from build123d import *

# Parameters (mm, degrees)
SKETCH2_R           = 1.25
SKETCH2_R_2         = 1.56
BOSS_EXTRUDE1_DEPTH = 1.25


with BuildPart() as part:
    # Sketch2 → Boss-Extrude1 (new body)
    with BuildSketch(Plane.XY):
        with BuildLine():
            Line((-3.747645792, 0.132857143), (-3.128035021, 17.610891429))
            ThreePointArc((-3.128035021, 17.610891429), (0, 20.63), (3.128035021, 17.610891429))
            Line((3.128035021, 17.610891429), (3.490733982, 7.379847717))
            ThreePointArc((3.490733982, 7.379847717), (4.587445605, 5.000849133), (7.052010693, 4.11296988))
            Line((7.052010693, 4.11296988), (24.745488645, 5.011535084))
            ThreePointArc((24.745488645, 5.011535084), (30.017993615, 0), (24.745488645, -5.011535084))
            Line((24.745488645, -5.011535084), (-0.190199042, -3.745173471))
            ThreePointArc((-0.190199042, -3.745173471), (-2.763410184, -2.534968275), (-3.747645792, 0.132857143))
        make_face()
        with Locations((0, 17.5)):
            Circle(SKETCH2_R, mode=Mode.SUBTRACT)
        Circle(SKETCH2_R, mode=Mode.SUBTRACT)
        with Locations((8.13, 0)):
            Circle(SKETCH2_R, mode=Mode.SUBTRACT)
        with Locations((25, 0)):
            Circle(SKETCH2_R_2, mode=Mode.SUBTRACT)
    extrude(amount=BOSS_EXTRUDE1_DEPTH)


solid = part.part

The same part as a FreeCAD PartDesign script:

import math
import FreeCAD as App
import Part
import Sketcher

doc = App.newDocument("Part")
body = doc.addObject("PartDesign::Body", "Body")

# Sketch on XY plane
sketch1 = body.newObject("Sketcher::SketchObject", "Sketch")
sketch1.AttachmentSupport = (doc.getObject("XY_Plane"), [""])
sketch1.MapMode = "FlatFace"
sketch1.addGeometry([
    Part.LineSegment(App.Vector(-3.128035, 17.610891, 0), App.Vector(-3.747646, 0.132857, 0)),  # 0
    Part.ArcOfCircle(Part.Circle(App.Vector(0, 0, 0), App.Vector(0, 0, 1), 3.75), math.radians(177.969668), math.radians(267.092725)),  # 1
    Part.LineSegment(App.Vector(-0.190199, -3.745173, 0), App.Vector(24.745489, -5.011535, 0)),  # 2
    Part.ArcOfCircle(Part.Circle(App.Vector(25, 0, 0), App.Vector(0, 0, 1), 5.017994), math.radians(-92.907275), math.radians(92.907275)),  # 3
    Part.LineSegment(App.Vector(24.745489, 5.011535, 0), App.Vector(7.052011, 4.11297, 0)),  # 4
    Part.ArcOfCircle(Part.Circle(App.Vector(6.88, 7.5, 0), App.Vector(0, 0, 1), 3.391395), math.radians(-177.969667), math.radians(-87.092725)),  # 5
    Part.LineSegment(App.Vector(3.490734, 7.379848, 0), App.Vector(3.128035, 17.610891, 0)),  # 6
    Part.ArcOfCircle(Part.Circle(App.Vector(0, 17.5, 0), App.Vector(0, 0, 1), 3.13), math.radians(2.030333), math.radians(177.969667)),  # 7
    Part.Circle(App.Vector(25, 0, 0), App.Vector(0, 0, 1), 1.56),  # 8
    Part.Circle(App.Vector(8.13, 0, 0), App.Vector(0, 0, 1), 1.25),  # 9
    Part.Circle(App.Vector(0, 0, 0), App.Vector(0, 0, 1), 1.25),  # 10
    Part.Circle(App.Vector(0, 17.5, 0), App.Vector(0, 0, 1), 1.25),  # 11
], False)
sketch1.addConstraint([
    Sketcher.Constraint("Tangent", 0, 2, 1, 1),
    Sketcher.Constraint("Tangent", 1, 2, 2, 1),
    Sketcher.Constraint("Tangent", 2, 2, 3, 1),
    Sketcher.Constraint("Tangent", 3, 2, 4, 1),
    Sketcher.Constraint("Tangent", 4, 2, 5, 2),
    Sketcher.Constraint("Tangent", 5, 1, 6, 1),
    Sketcher.Constraint("Tangent", 6, 2, 7, 1),
    Sketcher.Constraint("Tangent", 7, 2, 0, 1),
    Sketcher.Constraint("Coincident", 1, 3, -1, 1),
    Sketcher.Constraint("Coincident", 10, 3, -1, 1),
    Sketcher.Constraint("Coincident", 8, 3, 3, 3),
    Sketcher.Constraint("Coincident", 11, 3, 7, 3),
    Sketcher.Constraint("Equal", 9, 10),
    Sketcher.Constraint("Equal", 10, 11),
    Sketcher.Constraint("Symmetric", 6, 2, 7, 2, -2),
    Sketcher.Constraint("Symmetric", 2, 2, 3, 2, -1),
    Sketcher.Constraint("PointOnObject", 9, 3, -1),
    Sketcher.Constraint("Diameter", 9, 2.5),
    Sketcher.Constraint("Diameter", 8, 3.12),
    Sketcher.Constraint("Radius", 1, 3.75),
    Sketcher.Constraint("Radius", 7, 3.13),
    Sketcher.Constraint("DistanceX", -1, 1, 3, 3, 25.0),
    Sketcher.Constraint("DistanceY", 5, 3, 7, 3, 10.0),
    Sketcher.Constraint("DistanceY", -1, 1, 5, 3, 7.5),
    Sketcher.Constraint("DistanceX", -1, 1, 5, 3, 6.88),
    Sketcher.Constraint("DistanceX", -1, 1, 9, 3, 8.13),
])
pad1 = body.newObject("PartDesign::Pad", "Pad")
pad1.Profile = sketch1
pad1.Length = 1.25

doc.recompute()
